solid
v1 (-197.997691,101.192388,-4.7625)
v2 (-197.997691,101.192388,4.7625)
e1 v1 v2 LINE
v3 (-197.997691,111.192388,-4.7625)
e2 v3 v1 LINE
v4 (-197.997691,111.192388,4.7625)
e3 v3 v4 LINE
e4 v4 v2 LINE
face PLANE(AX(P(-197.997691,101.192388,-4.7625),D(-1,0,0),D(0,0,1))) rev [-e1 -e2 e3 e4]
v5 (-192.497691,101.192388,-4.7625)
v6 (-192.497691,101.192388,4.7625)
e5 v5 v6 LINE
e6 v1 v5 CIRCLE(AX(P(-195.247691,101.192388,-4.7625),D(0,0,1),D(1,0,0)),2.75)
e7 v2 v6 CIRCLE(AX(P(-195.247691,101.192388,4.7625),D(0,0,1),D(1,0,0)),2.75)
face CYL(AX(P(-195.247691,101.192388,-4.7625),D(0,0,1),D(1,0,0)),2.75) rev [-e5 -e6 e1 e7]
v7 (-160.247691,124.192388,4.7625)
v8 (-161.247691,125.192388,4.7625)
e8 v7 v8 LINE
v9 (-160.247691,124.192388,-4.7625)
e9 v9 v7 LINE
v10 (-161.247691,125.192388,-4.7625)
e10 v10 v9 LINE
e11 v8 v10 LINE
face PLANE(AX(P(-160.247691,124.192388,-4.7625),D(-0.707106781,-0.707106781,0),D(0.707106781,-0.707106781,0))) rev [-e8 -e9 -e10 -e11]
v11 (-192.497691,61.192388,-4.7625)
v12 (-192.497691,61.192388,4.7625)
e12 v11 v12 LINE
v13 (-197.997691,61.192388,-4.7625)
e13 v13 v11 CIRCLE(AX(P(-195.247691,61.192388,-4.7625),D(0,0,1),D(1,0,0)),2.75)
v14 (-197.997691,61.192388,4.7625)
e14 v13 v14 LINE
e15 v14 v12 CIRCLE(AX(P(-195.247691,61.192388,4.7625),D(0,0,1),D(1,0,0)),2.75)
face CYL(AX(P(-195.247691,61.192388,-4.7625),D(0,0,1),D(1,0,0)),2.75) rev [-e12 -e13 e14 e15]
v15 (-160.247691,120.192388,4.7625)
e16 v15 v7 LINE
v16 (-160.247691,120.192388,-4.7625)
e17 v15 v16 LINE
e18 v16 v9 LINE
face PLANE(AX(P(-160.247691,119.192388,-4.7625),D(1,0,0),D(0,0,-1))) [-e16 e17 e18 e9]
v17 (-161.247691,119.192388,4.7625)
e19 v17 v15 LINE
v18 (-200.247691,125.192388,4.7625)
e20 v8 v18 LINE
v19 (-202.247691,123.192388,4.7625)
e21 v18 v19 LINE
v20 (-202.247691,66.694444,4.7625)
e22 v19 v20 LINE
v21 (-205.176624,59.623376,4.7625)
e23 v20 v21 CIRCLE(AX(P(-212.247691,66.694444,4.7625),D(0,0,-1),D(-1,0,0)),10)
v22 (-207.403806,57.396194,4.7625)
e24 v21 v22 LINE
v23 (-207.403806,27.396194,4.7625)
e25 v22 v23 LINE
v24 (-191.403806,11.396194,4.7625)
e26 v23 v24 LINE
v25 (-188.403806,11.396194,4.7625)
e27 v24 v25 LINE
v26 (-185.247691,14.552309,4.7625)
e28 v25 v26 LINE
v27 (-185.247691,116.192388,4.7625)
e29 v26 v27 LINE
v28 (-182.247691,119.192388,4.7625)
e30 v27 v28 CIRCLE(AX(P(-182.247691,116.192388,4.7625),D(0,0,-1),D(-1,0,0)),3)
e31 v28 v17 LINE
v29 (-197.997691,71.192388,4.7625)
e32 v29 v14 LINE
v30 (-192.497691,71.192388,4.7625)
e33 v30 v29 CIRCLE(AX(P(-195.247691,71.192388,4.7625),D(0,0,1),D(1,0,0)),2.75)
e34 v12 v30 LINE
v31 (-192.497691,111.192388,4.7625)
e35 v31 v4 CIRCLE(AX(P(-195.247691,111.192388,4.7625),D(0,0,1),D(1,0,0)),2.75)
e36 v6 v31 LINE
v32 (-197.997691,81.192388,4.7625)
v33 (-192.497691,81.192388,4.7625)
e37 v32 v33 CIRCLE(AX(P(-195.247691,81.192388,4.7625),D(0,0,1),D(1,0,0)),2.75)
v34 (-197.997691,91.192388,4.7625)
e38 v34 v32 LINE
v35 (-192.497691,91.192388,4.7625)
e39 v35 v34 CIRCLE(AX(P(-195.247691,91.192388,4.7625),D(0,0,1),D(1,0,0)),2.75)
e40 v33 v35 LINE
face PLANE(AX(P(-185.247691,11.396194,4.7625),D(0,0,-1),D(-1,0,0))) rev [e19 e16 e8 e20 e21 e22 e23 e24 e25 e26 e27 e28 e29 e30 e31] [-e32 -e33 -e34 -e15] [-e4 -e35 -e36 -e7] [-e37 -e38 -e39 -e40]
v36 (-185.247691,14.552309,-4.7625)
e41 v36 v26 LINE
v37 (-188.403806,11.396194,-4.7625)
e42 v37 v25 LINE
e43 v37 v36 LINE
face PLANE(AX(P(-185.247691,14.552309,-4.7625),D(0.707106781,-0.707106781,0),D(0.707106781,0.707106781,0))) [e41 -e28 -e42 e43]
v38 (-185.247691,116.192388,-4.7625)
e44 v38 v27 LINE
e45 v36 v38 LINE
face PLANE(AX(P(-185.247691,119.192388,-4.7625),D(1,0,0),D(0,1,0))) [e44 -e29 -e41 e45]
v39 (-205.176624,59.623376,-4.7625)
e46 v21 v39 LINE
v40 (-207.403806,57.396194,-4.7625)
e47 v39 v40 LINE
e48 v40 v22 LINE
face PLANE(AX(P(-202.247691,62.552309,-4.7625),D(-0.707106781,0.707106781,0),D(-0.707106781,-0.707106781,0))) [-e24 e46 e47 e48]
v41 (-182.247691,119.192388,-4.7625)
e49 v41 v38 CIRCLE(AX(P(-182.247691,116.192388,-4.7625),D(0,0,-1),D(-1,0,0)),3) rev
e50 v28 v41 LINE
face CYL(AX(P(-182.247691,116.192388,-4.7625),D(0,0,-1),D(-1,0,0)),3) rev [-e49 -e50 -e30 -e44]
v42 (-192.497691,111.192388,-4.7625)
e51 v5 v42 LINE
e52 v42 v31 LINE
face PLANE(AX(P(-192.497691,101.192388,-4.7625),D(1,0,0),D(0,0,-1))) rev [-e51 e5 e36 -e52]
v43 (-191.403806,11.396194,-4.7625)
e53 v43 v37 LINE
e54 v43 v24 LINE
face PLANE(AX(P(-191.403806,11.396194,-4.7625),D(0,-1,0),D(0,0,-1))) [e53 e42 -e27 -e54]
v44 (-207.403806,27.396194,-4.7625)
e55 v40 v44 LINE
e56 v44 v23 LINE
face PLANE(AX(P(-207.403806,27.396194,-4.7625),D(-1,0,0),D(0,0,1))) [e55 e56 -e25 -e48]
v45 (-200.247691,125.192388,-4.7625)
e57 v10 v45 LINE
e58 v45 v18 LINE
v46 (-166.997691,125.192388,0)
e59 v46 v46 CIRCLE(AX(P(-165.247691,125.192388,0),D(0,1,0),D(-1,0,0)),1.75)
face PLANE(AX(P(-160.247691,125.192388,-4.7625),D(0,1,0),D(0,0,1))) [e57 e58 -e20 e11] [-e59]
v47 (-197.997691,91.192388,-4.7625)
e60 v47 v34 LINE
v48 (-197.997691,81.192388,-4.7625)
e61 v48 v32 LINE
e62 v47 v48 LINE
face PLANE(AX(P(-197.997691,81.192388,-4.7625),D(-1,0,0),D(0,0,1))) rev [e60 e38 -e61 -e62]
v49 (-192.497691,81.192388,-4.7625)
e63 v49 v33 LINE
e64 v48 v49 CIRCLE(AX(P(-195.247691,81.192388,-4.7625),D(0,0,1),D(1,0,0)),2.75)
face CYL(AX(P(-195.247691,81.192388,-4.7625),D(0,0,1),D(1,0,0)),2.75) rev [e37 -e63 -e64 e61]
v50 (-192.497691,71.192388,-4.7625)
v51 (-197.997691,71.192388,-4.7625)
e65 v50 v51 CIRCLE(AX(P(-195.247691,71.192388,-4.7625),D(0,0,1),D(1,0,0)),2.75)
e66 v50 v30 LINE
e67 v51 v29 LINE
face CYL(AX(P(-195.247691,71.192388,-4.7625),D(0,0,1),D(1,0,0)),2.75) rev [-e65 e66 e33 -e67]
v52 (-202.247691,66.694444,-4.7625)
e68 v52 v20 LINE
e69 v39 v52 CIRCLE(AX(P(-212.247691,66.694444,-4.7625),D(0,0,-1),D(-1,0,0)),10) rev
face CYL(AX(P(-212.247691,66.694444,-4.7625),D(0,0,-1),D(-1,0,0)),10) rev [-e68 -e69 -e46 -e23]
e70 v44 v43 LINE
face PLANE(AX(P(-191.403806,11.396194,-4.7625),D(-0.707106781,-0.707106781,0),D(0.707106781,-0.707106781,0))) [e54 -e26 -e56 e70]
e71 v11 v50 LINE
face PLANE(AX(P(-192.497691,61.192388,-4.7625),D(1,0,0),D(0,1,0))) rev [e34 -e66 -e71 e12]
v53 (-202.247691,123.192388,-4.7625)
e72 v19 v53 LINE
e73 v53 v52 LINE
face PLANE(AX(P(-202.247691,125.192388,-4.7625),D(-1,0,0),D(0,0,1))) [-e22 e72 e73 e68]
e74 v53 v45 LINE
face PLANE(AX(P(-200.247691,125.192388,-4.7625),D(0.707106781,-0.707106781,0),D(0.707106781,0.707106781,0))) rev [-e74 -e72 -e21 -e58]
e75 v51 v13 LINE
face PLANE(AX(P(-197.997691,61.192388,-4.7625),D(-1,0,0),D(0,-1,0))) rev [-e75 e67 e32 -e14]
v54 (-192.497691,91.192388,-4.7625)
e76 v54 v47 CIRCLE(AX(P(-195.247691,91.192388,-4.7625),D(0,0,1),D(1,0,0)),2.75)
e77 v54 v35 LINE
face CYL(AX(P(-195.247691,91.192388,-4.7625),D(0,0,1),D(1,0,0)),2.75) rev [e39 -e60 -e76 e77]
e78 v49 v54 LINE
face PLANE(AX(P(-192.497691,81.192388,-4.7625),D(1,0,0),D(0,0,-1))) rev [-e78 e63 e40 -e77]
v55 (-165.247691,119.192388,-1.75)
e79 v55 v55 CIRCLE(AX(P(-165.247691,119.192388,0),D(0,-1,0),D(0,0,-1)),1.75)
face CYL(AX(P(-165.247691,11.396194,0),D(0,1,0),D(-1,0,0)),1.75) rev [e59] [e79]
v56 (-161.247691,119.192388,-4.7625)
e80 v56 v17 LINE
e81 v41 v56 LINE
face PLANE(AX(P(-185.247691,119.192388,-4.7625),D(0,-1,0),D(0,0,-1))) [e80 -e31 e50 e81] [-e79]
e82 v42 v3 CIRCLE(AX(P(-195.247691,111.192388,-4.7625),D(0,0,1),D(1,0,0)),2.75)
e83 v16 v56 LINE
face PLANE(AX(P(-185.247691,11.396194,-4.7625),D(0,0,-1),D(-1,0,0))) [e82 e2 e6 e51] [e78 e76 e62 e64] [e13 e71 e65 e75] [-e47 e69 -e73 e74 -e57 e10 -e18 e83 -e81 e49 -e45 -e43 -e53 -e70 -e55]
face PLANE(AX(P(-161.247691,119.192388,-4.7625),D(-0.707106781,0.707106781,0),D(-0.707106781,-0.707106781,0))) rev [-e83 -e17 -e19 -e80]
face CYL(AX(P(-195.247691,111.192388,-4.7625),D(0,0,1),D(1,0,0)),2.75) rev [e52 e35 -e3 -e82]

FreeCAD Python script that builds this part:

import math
import FreeCAD as App
import Part
import Sketcher
Q = App.Units.Quantity


def edges_at(feature, points):
    """Names of the edges that pass closest to the given points."""
    edges = feature.Shape.Edges
    near = lambda p: min(range(len(edges)), key=lambda i: edges[i].distToShape(Part.Vertex(*p))[0])
    return sorted({f"Edge{near(p) + 1}" for p in points})

doc = App.newDocument("Part")
body = doc.addObject("PartDesign::Body", "Body")

# Sketch on XY plane
sketch1 = body.newObject("Sketcher::SketchObject", "Sketch")
sketch1.AttachmentSupport = (doc.getObject("XY_Plane"), [""])
sketch1.MapMode = "FlatFace"
sketch1.addGeometry([
    Part.LineSegment(App.Vector(-207.4, 27.4, 0), App.Vector(-191.4, 11.4, 0)),  # 0
    Part.LineSegment(App.Vector(-191.4, 11.4, 0), App.Vector(-188.4, 11.4, 0)),  # 1
    Part.LineSegment(App.Vector(-188.4, 11.4, 0), App.Vector(-185.2, 14.6, 0)),  # 2
    Part.LineSegment(App.Vector(-185.2, 14.6, 0), App.Vector(-185.2, 119.2, 0)),  # 3
    Part.LineSegment(App.Vector(-185.2, 119.2, 0), App.Vector(-160.2, 119.2, 0)),  # 4
    Part.LineSegment(App.Vector(-160.2, 119.2, 0), App.Vector(-160.2, 125.2, 0)),  # 5
    Part.LineSegment(App.Vector(-160.2, 125.2, 0), App.Vector(-202.2, 125.2, 0)),  # 6
    Part.LineSegment(App.Vector(-202.2, 125.2, 0), App.Vector(-202.2, 62.6, 0)),  # 7
    Part.LineSegment(App.Vector(-202.2, 62.6, 0), App.Vector(-207.4, 57.4, 0)),  # 8
    Part.LineSegment(App.Vector(-207.4, 57.4, 0), App.Vector(-207.4, 27.4, 0)),  # 9
    Part.ArcOfCircle(Part.Circle(App.Vector(-195.2, 61.2, 0), App.Vector(0, 0, 1), 2.8), math.radians(180), math.radians(360)),  # 10
    Part.LineSegment(App.Vector(-198, 61.2, 0), App.Vector(-198, 71.2, 0)),  # 11
    Part.ArcOfCircle(Part.Circle(App.Vector(-195.2, 71.2, 0), App.Vector(0, 0, 1), 2.8), math.radians(0), math.radians(180)),  # 12
    Part.LineSegment(App.Vector(-192.5, 71.2, 0), App.Vector(-192.5, 61.2, 0)),  # 13
    Part.ArcOfCircle(Part.Circle(App.Vector(-195.2, 81.2, 0), App.Vector(0, 0, 1), 2.8), math.radians(180), math.radians(360)),  # 14
    Part.LineSegment(App.Vector(-198, 81.2, 0), App.Vector(-198, 91.2, 0)),  # 15
    Part.ArcOfCircle(Part.Circle(App.Vector(-195.2, 91.2, 0), App.Vector(0, 0, 1), 2.8), math.radians(0), math.radians(180)),  # 16
    Part.LineSegment(App.Vector(-192.5, 91.2, 0), App.Vector(-192.5, 81.2, 0)),  # 17
    Part.ArcOfCircle(Part.Circle(App.Vector(-195.2, 101.2, 0), App.Vector(0, 0, 1), 2.8), math.radians(180), math.radians(360)),  # 18
    Part.LineSegment(App.Vector(-198, 101.2, 0), App.Vector(-198, 111.2, 0)),  # 19
    Part.ArcOfCircle(Part.Circle(App.Vector(-195.2, 111.2, 0), App.Vector(0, 0, 1), 2.8), math.radians(0), math.radians(180)),  # 20
    Part.LineSegment(App.Vector(-192.5, 111.2, 0), App.Vector(-192.5, 101.2, 0)),  # 21
], False)
sketch1.addConstraint([
    Sketcher.Constraint("Coincident", 0, 2, 1, 1),
    Sketcher.Constraint("Coincident", 1, 2, 2, 1),
    Sketcher.Constraint("Coincident", 2, 2, 3, 1),
    Sketcher.Constraint("Coincident", 3, 2, 4, 1),
    Sketcher.Constraint("Coincident", 4, 2, 5, 1),
    Sketcher.Constraint("Coincident", 5, 2, 6, 1),
    Sketcher.Constraint("Coincident", 6, 2, 7, 1),
    Sketcher.Constraint("Coincident", 7, 2, 8, 1),
    Sketcher.Constraint("Coincident", 8, 2, 9, 1),
    Sketcher.Constraint("Coincident", 9, 2, 0, 1),
    Sketcher.Constraint("Tangent", 10, 1, 11, 1),
    Sketcher.Constraint("Tangent", 11, 2, 12, 2),
    Sketcher.Constraint("Tangent", 12, 1, 13, 1),
    Sketcher.Constraint("Tangent", 13, 2, 10, 2),
    Sketcher.Constraint("Tangent", 14, 1, 15, 1),
    Sketcher.Constraint("Tangent", 15, 2, 16, 2),
    Sketcher.Constraint("Tangent", 16, 1, 17, 1),
    Sketcher.Constraint("Tangent", 17, 2, 14, 2),
    Sketcher.Constraint("Tangent", 18, 1, 19, 1),
    Sketcher.Constraint("Tangent", 19, 2, 20, 2),
    Sketcher.Constraint("Tangent", 20, 1, 21, 1),
    Sketcher.Constraint("Tangent", 21, 2, 18, 2),
    Sketcher.Constraint("Horizontal", 1),
    Sketcher.Constraint("Vertical", 3),
    Sketcher.Constraint("Horizontal", 4),
    Sketcher.Constraint("Vertical", 5),
    Sketcher.Constraint("Horizontal", 6),
    Sketcher.Constraint("Vertical", 7),
    Sketcher.Constraint("Vertical", 9),
    Sketcher.Constraint("Vertical", 11),
    Sketcher.Constraint("Vertical", 13),
    Sketcher.Constraint("Vertical", 15),
    Sketcher.Constraint("Vertical", 17),
    Sketcher.Constraint("Vertical", 19),
    Sketcher.Constraint("Vertical", 21),
    Sketcher.Constraint("Equal", 12, 14),
    Sketcher.Constraint("Equal", 16, 18),
    Sketcher.Constraint("Perpendicular", 0, 2),
    Sketcher.Constraint("Parallel", 2, 8),
    Sketcher.Constraint("Vertical", 12, 3, 14, 3),
    Sketcher.Constraint("Vertical", 16, 3, 18, 3),
    Sketcher.Constraint("Equal", 13, 15),
    Sketcher.Constraint("Equal", 17, 19),
    Sketcher.Constraint("DistanceX", 1, 1, 1, 2, 3.0),
    Sketcher.Constraint("DistanceX", 4, 1, 4, 2, 25.0),
    Sketcher.Constraint("DistanceX", 6, 2, 6, 1, 42.0),
    Sketcher.Constraint("DistanceY", 5, 1, 5, 2, 6.0),
    Sketcher.Constraint("DistanceY", 9, 2, 9, 1, 30.0),
    Sketcher.Constraint("DistanceY", 11, 1, 11, 2, 10.0),
    Sketcher.Constraint("Angle", 0, Q("-45 deg")),
    Sketcher.Constraint("Radius", 10, 2.75),
    Sketcher.Constraint("DistanceY", 12, 3, 14, 3, 10.0),
    Sketcher.Constraint("DistanceY", 16, 3, 18, 3, 10.0),
    Sketcher.Constraint("DistanceX", 10, 3, 2, 2, 10.0),
    Sketcher.Constraint("DistanceY", 20, 3, 3, 2, 8.0),
    Sketcher.Constraint("DistanceX", 9, 2, 0, 2, 16.0),
    Sketcher.Constraint("DistanceY", 3, 1, 3, 2, 104.640079),
    Sketcher.Constraint("Distance", 2, 4.46342),
    Sketcher.Constraint("DistanceX", 10, 3, -1, 1, 195.247691),
    Sketcher.Constraint("DistanceY", -1, 1, 10, 3, 61.192388),
])
pad1 = body.newObject("PartDesign::Pad", "Pad")
pad1.Profile = sketch1
pad1.Type = "TwoLengths"
pad1.Length = 4.7625
pad1.Length2 = 4.7625

# Sketch on XZ plane
sketch2 = body.newObject("Sketcher::SketchObject", "Sketch001")
sketch2.AttachmentSupport = (doc.getObject("XZ_Plane"), [""])
sketch2.MapMode = "FlatFace"
sketch2.AttachmentOffset = App.Placement(App.Vector(0, 0, -125.192388), App.Rotation())
sketch2.addGeometry(Part.Circle(App.Vector(-165.2, 0, 0), App.Vector(0, 0, 1), 1.8), False)
sketch2.addConstraint([
    Sketcher.Constraint("PointOnObject", 0, 3, -1),
    Sketcher.Constraint("Diameter", 0, 3.5),
    Sketcher.Constraint("DistanceX", 0, 3, -1, 1, 165.247691),
])
pocket1 = body.newObject("PartDesign::Pocket", "Pocket")
pocket1.Profile = sketch2
pocket1.Type = "ThroughAll"
pocket1.Reversed = True
doc.recompute()

fillet = body.newObject("PartDesign::Fillet", "Fillet")
fillet.Base = (pocket1, edges_at(pocket1, [(-202.248, 62.552, 0)]))
fillet.Radius = 10
doc.recompute()

chamfer = body.newObject("PartDesign::Chamfer", "Chamfer")
chamfer.Base = (fillet, edges_at(fillet, [(-202.248, 125.192, 0)]))
chamfer.Size = 2
doc.recompute()

chamfer2 = body.newObject("PartDesign::Chamfer", "Chamfer001")
chamfer2.Base = (chamfer, edges_at(chamfer, [(-160.248, 125.192, 0), (-160.248, 119.192, 0)]))
chamfer2.Size = 1
doc.recompute()

fillet2 = body.newObject("PartDesign::Fillet", "Fillet001")
fillet2.Base = (chamfer2, edges_at(chamfer2, [(-185.248, 119.192, 0)]))
fillet2.Radius = 3

doc.recompute()
